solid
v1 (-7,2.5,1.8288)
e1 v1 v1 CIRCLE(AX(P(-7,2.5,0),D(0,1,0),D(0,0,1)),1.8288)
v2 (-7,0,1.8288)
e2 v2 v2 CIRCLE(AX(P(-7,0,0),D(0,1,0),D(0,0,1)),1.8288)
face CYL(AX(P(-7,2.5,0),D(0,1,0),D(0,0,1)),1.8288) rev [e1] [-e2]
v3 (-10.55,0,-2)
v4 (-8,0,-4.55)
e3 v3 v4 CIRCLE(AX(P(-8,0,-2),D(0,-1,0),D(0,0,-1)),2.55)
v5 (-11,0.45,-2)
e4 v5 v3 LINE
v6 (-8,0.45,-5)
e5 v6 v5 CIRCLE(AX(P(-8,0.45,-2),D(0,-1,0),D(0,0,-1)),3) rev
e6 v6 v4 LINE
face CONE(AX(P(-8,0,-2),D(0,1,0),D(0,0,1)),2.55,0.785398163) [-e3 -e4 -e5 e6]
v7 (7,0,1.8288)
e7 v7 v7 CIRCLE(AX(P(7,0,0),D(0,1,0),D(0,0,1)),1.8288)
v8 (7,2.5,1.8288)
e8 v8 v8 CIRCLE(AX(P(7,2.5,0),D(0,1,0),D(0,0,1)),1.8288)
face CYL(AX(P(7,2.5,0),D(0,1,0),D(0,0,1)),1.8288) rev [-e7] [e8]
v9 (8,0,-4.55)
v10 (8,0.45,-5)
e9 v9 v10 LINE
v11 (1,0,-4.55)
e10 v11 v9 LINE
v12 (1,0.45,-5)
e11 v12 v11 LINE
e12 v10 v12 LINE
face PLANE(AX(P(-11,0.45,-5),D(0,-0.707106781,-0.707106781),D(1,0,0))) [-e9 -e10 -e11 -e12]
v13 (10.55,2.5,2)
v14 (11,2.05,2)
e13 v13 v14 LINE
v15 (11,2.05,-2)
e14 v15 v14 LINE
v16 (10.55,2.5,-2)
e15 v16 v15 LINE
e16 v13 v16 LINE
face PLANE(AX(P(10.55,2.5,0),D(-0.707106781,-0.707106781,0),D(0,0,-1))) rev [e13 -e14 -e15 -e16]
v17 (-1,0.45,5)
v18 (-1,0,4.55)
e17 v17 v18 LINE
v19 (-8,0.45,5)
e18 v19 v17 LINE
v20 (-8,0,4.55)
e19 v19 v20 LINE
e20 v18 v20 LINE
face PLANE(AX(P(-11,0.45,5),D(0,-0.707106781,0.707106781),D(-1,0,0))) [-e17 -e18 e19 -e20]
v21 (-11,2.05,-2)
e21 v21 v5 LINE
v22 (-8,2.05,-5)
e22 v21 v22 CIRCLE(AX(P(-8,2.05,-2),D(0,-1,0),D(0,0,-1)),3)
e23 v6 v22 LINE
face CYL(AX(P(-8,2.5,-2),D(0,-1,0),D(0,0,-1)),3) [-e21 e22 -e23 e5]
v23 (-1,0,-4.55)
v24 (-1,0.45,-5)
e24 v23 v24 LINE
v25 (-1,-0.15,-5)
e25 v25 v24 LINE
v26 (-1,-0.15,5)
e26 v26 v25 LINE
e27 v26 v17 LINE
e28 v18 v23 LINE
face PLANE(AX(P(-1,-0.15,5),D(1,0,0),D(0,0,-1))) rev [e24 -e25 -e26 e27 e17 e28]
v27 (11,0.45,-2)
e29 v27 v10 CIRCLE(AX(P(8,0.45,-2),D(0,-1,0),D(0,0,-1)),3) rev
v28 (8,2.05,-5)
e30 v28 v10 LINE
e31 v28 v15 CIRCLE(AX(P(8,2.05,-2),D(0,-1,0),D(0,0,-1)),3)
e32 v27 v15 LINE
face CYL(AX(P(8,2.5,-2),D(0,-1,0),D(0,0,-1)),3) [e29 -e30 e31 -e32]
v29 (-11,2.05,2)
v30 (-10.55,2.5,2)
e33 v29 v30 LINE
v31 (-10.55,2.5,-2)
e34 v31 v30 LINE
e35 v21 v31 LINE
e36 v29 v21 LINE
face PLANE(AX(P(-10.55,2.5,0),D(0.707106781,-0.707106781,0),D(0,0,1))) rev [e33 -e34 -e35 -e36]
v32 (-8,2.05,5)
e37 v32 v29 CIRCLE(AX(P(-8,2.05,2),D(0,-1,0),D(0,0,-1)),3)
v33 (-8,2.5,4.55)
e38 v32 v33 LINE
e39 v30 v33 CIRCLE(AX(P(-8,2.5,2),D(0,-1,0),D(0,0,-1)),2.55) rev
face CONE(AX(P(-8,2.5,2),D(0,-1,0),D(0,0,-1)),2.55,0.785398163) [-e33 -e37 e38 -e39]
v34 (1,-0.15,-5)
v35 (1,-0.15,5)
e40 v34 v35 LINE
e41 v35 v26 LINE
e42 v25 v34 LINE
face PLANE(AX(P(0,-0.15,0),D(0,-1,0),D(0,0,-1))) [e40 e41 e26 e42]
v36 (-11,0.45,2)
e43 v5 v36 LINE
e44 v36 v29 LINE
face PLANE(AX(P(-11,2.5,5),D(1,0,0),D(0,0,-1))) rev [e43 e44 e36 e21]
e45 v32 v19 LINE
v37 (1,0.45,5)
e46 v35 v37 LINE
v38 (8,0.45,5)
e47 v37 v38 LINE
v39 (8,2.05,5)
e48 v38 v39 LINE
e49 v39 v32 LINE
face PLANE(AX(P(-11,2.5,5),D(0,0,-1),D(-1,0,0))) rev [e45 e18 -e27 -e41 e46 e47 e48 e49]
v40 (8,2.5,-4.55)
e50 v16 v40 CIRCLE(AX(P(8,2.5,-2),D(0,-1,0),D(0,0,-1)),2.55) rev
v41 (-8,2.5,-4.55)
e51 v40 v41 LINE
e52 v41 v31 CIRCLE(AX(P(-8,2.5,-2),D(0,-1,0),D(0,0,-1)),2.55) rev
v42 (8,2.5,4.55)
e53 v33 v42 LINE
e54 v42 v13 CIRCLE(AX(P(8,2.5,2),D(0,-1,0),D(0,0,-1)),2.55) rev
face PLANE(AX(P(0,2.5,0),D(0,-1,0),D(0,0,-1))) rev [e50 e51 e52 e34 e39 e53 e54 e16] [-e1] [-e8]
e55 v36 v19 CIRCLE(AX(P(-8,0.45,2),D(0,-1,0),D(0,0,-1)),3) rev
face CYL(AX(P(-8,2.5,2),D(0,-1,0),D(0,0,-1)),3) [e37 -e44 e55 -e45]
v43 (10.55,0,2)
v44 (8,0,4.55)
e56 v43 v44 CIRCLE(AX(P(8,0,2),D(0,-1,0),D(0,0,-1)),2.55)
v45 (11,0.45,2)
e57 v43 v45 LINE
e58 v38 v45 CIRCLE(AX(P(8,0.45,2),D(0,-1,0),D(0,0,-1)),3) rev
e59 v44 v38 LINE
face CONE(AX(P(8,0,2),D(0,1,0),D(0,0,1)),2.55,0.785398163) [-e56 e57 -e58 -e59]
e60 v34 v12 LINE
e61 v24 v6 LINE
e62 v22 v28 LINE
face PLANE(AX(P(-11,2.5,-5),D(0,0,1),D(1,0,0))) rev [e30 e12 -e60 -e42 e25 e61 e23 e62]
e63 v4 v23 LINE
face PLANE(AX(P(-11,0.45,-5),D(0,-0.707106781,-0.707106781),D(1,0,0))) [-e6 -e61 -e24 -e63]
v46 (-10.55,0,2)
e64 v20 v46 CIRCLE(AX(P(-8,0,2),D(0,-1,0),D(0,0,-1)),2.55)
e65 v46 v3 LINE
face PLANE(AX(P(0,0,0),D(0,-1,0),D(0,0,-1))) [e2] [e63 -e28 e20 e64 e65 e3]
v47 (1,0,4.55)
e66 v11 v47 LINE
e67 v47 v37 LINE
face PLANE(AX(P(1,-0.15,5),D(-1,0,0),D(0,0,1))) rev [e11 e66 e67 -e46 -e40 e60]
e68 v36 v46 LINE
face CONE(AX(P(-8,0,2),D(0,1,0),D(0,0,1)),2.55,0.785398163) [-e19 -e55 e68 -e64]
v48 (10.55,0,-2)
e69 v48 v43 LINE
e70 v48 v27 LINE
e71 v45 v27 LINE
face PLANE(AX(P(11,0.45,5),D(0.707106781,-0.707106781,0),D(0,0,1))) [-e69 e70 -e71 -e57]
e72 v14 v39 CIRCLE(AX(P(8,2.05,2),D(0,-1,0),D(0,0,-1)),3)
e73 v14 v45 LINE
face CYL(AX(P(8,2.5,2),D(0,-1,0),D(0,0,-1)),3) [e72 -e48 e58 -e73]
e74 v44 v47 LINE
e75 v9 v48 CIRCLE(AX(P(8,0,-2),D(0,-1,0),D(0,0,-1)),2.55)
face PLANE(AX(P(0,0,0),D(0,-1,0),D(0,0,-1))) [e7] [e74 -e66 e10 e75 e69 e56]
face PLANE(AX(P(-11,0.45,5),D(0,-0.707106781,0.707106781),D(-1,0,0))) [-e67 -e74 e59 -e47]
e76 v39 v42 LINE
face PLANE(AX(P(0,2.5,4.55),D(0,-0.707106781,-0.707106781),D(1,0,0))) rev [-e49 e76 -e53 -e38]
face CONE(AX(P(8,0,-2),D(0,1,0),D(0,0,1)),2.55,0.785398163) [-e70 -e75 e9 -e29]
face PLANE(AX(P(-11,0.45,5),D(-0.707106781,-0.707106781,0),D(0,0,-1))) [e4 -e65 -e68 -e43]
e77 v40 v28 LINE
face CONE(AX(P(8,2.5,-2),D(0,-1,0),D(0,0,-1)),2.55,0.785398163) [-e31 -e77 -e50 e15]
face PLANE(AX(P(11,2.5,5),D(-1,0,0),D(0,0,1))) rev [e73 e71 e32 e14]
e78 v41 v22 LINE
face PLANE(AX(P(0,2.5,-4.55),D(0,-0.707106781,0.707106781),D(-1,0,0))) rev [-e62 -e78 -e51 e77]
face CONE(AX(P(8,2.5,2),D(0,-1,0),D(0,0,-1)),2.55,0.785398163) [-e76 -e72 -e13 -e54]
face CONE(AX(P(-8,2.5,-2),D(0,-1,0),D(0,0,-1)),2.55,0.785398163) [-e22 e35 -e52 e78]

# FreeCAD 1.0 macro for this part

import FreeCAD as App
import Part
import Sketcher

V = App.Vector
Q = App.Units.Quantity


def edges_at(feature, points):
    """Names of the edges that pass closest to the given points."""
    edges = feature.Shape.Edges
    near = lambda p: min(range(len(edges)), key=lambda i: edges[i].distToShape(Part.Vertex(*p))[0])
    return sorted({f"Edge{near(p) + 1}" for p in points})

doc = App.newDocument("Part")
body = doc.addObject("PartDesign::Body", "Body")

# Sketch on XZ plane
sketch1 = body.newObject("Sketcher::SketchObject", "Sketch")
sketch1.AttachmentSupport = (doc.getObject("XZ_Plane"), [""])
sketch1.MapMode = "FlatFace"
sketch1.addGeometry([
    Part.LineSegment(V(-11, -5, 0), V(-11, 5, 0)),
    Part.LineSegment(V(-11, 5, 0), V(11, 5, 0)),
    Part.LineSegment(V(11, 5, 0), V(11, -5, 0)),
    Part.LineSegment(V(11, -5, 0), V(-11, -5, 0)),
], False)
sketch1.addConstraint([
    Sketcher.Constraint("Coincident", 0, 2, 1, 1),
    Sketcher.Constraint("Coincident", 1, 2, 2, 1),
    Sketcher.Constraint("Coincident", 2, 2, 3, 1),
    Sketcher.Constraint("Coincident", 3, 2, 0, 1),
    Sketcher.Constraint("Vertical", 0),
    Sketcher.Constraint("Horizontal", 1),
    Sketcher.Constraint("Vertical", 2),
    Sketcher.Constraint("Horizontal", 3),
    Sketcher.Constraint("Symmetric", 0, 2, 2, 2, -1, 1),
    Sketcher.Constraint("DistanceX", 1, 1, 1, 2, Q("22 mm")),
    Sketcher.Constraint("DistanceY", 0, 1, 0, 2, Q("10 mm")),
])
pad1 = body.newObject("PartDesign::Pad", "Pad")
pad1.Profile = sketch1
pad1.Length = 2.5
pad1.Reversed = True

# Sketch on XZ plane
sketch2 = body.newObject("Sketcher::SketchObject", "Sketch001")
sketch2.AttachmentSupport = (doc.getObject("XZ_Plane"), [""])
sketch2.MapMode = "FlatFace"
sketch2.AttachmentOffset = App.Placement(V(0, 0, -2.5), App.Rotation())
sketch2.addGeometry([
    Part.Circle(V(7, 0, 0), V(0, 0, 1), 1.8288),
    Part.Circle(V(-7, 0, 0), V(0, 0, 1), 1.8288),
], False)
sketch2.addConstraint([
    Sketcher.Constraint("Equal", 0, 1),
    Sketcher.Constraint("Symmetric", 0, 3, 1, 3, -1, 1),
    Sketcher.Constraint("PointOnObject", 0, 3, -1),
    Sketcher.Constraint("DistanceX", -1, 1, 0, 3, Q("7 mm")),
    Sketcher.Constraint("Diameter", 0, Q("3.6576 mm")),
])
doc.recompute()
hole = body.newObject("PartDesign::Hole", "Hole")
hole.Profile = sketch2
hole.ThreadType = "None"
hole.Diameter = 3.6576
hole.DepthType = "ThroughAll"
hole.Reversed = True

# Sketch on XZ plane
sketch3 = body.newObject("Sketcher::SketchObject", "Sketch002")
sketch3.AttachmentSupport = (doc.getObject("XZ_Plane"), [""])
sketch3.MapMode = "FlatFace"
sketch3.addGeometry([
    Part.LineSegment(V(-1, 5, 0), V(-1, -5, 0)),
    Part.LineSegment(V(-1, -5, 0), V(1, -5, 0)),
    Part.LineSegment(V(1, -5, 0), V(1, 5, 0)),
    Part.LineSegment(V(1, 5, 0), V(-1, 5, 0)),
], False)
sketch3.addConstraint([
    Sketcher.Constraint("Coincident", 0, 2, 1, 1),
    Sketcher.Constraint("Coincident", 1, 2, 2, 1),
    Sketcher.Constraint("Coincident", 2, 2, 3, 1),
    Sketcher.Constraint("Coincident", 3, 2, 0, 1),
    Sketcher.Constraint("Vertical", 0),
    Sketcher.Constraint("Horizontal", 1),
    Sketcher.Constraint("Vertical", 2),
    Sketcher.Constraint("Horizontal", 3),
    Sketcher.Constraint("Symmetric", 0, 2, 2, 2, -1, 1),
    Sketcher.Constraint("DistanceX", 1, 1, 1, 2, Q("2 mm")),
    Sketcher.Constraint("DistanceY", 0, 2, 0, 1, Q("10 mm")),
])
pad2 = body.newObject("PartDesign::Pad", "Pad001")
pad2.Profile = sketch3
pad2.Length = 0.15
doc.recompute()

fillet = body.newObject("PartDesign::Fillet", "Fillet")
fillet.Base = (pad2, edges_at(pad2, [
    (11, 1.25, 5),
    (-11, 1.25, 5),
    (-11, 1.25, -5),
    (11, 1.25, -5),
]))
fillet.Radius = 3
doc.recompute()

chamfer = body.newObject("PartDesign::Chamfer", "Chamfer")
chamfer.Base = (fillet, edges_at(fillet, [
    (4.5, 0, 5),
    (-4.5, 0, -5),
    (11, 0, 0),
    (11, 2.5, 0),
    (4.5, 0, -5),
    (10.121, 0, -4.121),
    (10.121, 0, 4.121),
    (-4.5, 0, 5),
    (0, 2.5, 5),
    (0, 2.5, -5),
    (-11, 2.5, 0),
    (-10.121, 2.5, 4.121),
    (-10.121, 2.5, -4.121),
    (10.121, 2.5, -4.121),
    (10.121, 2.5, 4.121),
    (-11, 0, 0),
    (-10.121, 0, 4.121),
    (-10.121, 0, -4.121),
]))
chamfer.Size = 0.45

doc.recompute()
